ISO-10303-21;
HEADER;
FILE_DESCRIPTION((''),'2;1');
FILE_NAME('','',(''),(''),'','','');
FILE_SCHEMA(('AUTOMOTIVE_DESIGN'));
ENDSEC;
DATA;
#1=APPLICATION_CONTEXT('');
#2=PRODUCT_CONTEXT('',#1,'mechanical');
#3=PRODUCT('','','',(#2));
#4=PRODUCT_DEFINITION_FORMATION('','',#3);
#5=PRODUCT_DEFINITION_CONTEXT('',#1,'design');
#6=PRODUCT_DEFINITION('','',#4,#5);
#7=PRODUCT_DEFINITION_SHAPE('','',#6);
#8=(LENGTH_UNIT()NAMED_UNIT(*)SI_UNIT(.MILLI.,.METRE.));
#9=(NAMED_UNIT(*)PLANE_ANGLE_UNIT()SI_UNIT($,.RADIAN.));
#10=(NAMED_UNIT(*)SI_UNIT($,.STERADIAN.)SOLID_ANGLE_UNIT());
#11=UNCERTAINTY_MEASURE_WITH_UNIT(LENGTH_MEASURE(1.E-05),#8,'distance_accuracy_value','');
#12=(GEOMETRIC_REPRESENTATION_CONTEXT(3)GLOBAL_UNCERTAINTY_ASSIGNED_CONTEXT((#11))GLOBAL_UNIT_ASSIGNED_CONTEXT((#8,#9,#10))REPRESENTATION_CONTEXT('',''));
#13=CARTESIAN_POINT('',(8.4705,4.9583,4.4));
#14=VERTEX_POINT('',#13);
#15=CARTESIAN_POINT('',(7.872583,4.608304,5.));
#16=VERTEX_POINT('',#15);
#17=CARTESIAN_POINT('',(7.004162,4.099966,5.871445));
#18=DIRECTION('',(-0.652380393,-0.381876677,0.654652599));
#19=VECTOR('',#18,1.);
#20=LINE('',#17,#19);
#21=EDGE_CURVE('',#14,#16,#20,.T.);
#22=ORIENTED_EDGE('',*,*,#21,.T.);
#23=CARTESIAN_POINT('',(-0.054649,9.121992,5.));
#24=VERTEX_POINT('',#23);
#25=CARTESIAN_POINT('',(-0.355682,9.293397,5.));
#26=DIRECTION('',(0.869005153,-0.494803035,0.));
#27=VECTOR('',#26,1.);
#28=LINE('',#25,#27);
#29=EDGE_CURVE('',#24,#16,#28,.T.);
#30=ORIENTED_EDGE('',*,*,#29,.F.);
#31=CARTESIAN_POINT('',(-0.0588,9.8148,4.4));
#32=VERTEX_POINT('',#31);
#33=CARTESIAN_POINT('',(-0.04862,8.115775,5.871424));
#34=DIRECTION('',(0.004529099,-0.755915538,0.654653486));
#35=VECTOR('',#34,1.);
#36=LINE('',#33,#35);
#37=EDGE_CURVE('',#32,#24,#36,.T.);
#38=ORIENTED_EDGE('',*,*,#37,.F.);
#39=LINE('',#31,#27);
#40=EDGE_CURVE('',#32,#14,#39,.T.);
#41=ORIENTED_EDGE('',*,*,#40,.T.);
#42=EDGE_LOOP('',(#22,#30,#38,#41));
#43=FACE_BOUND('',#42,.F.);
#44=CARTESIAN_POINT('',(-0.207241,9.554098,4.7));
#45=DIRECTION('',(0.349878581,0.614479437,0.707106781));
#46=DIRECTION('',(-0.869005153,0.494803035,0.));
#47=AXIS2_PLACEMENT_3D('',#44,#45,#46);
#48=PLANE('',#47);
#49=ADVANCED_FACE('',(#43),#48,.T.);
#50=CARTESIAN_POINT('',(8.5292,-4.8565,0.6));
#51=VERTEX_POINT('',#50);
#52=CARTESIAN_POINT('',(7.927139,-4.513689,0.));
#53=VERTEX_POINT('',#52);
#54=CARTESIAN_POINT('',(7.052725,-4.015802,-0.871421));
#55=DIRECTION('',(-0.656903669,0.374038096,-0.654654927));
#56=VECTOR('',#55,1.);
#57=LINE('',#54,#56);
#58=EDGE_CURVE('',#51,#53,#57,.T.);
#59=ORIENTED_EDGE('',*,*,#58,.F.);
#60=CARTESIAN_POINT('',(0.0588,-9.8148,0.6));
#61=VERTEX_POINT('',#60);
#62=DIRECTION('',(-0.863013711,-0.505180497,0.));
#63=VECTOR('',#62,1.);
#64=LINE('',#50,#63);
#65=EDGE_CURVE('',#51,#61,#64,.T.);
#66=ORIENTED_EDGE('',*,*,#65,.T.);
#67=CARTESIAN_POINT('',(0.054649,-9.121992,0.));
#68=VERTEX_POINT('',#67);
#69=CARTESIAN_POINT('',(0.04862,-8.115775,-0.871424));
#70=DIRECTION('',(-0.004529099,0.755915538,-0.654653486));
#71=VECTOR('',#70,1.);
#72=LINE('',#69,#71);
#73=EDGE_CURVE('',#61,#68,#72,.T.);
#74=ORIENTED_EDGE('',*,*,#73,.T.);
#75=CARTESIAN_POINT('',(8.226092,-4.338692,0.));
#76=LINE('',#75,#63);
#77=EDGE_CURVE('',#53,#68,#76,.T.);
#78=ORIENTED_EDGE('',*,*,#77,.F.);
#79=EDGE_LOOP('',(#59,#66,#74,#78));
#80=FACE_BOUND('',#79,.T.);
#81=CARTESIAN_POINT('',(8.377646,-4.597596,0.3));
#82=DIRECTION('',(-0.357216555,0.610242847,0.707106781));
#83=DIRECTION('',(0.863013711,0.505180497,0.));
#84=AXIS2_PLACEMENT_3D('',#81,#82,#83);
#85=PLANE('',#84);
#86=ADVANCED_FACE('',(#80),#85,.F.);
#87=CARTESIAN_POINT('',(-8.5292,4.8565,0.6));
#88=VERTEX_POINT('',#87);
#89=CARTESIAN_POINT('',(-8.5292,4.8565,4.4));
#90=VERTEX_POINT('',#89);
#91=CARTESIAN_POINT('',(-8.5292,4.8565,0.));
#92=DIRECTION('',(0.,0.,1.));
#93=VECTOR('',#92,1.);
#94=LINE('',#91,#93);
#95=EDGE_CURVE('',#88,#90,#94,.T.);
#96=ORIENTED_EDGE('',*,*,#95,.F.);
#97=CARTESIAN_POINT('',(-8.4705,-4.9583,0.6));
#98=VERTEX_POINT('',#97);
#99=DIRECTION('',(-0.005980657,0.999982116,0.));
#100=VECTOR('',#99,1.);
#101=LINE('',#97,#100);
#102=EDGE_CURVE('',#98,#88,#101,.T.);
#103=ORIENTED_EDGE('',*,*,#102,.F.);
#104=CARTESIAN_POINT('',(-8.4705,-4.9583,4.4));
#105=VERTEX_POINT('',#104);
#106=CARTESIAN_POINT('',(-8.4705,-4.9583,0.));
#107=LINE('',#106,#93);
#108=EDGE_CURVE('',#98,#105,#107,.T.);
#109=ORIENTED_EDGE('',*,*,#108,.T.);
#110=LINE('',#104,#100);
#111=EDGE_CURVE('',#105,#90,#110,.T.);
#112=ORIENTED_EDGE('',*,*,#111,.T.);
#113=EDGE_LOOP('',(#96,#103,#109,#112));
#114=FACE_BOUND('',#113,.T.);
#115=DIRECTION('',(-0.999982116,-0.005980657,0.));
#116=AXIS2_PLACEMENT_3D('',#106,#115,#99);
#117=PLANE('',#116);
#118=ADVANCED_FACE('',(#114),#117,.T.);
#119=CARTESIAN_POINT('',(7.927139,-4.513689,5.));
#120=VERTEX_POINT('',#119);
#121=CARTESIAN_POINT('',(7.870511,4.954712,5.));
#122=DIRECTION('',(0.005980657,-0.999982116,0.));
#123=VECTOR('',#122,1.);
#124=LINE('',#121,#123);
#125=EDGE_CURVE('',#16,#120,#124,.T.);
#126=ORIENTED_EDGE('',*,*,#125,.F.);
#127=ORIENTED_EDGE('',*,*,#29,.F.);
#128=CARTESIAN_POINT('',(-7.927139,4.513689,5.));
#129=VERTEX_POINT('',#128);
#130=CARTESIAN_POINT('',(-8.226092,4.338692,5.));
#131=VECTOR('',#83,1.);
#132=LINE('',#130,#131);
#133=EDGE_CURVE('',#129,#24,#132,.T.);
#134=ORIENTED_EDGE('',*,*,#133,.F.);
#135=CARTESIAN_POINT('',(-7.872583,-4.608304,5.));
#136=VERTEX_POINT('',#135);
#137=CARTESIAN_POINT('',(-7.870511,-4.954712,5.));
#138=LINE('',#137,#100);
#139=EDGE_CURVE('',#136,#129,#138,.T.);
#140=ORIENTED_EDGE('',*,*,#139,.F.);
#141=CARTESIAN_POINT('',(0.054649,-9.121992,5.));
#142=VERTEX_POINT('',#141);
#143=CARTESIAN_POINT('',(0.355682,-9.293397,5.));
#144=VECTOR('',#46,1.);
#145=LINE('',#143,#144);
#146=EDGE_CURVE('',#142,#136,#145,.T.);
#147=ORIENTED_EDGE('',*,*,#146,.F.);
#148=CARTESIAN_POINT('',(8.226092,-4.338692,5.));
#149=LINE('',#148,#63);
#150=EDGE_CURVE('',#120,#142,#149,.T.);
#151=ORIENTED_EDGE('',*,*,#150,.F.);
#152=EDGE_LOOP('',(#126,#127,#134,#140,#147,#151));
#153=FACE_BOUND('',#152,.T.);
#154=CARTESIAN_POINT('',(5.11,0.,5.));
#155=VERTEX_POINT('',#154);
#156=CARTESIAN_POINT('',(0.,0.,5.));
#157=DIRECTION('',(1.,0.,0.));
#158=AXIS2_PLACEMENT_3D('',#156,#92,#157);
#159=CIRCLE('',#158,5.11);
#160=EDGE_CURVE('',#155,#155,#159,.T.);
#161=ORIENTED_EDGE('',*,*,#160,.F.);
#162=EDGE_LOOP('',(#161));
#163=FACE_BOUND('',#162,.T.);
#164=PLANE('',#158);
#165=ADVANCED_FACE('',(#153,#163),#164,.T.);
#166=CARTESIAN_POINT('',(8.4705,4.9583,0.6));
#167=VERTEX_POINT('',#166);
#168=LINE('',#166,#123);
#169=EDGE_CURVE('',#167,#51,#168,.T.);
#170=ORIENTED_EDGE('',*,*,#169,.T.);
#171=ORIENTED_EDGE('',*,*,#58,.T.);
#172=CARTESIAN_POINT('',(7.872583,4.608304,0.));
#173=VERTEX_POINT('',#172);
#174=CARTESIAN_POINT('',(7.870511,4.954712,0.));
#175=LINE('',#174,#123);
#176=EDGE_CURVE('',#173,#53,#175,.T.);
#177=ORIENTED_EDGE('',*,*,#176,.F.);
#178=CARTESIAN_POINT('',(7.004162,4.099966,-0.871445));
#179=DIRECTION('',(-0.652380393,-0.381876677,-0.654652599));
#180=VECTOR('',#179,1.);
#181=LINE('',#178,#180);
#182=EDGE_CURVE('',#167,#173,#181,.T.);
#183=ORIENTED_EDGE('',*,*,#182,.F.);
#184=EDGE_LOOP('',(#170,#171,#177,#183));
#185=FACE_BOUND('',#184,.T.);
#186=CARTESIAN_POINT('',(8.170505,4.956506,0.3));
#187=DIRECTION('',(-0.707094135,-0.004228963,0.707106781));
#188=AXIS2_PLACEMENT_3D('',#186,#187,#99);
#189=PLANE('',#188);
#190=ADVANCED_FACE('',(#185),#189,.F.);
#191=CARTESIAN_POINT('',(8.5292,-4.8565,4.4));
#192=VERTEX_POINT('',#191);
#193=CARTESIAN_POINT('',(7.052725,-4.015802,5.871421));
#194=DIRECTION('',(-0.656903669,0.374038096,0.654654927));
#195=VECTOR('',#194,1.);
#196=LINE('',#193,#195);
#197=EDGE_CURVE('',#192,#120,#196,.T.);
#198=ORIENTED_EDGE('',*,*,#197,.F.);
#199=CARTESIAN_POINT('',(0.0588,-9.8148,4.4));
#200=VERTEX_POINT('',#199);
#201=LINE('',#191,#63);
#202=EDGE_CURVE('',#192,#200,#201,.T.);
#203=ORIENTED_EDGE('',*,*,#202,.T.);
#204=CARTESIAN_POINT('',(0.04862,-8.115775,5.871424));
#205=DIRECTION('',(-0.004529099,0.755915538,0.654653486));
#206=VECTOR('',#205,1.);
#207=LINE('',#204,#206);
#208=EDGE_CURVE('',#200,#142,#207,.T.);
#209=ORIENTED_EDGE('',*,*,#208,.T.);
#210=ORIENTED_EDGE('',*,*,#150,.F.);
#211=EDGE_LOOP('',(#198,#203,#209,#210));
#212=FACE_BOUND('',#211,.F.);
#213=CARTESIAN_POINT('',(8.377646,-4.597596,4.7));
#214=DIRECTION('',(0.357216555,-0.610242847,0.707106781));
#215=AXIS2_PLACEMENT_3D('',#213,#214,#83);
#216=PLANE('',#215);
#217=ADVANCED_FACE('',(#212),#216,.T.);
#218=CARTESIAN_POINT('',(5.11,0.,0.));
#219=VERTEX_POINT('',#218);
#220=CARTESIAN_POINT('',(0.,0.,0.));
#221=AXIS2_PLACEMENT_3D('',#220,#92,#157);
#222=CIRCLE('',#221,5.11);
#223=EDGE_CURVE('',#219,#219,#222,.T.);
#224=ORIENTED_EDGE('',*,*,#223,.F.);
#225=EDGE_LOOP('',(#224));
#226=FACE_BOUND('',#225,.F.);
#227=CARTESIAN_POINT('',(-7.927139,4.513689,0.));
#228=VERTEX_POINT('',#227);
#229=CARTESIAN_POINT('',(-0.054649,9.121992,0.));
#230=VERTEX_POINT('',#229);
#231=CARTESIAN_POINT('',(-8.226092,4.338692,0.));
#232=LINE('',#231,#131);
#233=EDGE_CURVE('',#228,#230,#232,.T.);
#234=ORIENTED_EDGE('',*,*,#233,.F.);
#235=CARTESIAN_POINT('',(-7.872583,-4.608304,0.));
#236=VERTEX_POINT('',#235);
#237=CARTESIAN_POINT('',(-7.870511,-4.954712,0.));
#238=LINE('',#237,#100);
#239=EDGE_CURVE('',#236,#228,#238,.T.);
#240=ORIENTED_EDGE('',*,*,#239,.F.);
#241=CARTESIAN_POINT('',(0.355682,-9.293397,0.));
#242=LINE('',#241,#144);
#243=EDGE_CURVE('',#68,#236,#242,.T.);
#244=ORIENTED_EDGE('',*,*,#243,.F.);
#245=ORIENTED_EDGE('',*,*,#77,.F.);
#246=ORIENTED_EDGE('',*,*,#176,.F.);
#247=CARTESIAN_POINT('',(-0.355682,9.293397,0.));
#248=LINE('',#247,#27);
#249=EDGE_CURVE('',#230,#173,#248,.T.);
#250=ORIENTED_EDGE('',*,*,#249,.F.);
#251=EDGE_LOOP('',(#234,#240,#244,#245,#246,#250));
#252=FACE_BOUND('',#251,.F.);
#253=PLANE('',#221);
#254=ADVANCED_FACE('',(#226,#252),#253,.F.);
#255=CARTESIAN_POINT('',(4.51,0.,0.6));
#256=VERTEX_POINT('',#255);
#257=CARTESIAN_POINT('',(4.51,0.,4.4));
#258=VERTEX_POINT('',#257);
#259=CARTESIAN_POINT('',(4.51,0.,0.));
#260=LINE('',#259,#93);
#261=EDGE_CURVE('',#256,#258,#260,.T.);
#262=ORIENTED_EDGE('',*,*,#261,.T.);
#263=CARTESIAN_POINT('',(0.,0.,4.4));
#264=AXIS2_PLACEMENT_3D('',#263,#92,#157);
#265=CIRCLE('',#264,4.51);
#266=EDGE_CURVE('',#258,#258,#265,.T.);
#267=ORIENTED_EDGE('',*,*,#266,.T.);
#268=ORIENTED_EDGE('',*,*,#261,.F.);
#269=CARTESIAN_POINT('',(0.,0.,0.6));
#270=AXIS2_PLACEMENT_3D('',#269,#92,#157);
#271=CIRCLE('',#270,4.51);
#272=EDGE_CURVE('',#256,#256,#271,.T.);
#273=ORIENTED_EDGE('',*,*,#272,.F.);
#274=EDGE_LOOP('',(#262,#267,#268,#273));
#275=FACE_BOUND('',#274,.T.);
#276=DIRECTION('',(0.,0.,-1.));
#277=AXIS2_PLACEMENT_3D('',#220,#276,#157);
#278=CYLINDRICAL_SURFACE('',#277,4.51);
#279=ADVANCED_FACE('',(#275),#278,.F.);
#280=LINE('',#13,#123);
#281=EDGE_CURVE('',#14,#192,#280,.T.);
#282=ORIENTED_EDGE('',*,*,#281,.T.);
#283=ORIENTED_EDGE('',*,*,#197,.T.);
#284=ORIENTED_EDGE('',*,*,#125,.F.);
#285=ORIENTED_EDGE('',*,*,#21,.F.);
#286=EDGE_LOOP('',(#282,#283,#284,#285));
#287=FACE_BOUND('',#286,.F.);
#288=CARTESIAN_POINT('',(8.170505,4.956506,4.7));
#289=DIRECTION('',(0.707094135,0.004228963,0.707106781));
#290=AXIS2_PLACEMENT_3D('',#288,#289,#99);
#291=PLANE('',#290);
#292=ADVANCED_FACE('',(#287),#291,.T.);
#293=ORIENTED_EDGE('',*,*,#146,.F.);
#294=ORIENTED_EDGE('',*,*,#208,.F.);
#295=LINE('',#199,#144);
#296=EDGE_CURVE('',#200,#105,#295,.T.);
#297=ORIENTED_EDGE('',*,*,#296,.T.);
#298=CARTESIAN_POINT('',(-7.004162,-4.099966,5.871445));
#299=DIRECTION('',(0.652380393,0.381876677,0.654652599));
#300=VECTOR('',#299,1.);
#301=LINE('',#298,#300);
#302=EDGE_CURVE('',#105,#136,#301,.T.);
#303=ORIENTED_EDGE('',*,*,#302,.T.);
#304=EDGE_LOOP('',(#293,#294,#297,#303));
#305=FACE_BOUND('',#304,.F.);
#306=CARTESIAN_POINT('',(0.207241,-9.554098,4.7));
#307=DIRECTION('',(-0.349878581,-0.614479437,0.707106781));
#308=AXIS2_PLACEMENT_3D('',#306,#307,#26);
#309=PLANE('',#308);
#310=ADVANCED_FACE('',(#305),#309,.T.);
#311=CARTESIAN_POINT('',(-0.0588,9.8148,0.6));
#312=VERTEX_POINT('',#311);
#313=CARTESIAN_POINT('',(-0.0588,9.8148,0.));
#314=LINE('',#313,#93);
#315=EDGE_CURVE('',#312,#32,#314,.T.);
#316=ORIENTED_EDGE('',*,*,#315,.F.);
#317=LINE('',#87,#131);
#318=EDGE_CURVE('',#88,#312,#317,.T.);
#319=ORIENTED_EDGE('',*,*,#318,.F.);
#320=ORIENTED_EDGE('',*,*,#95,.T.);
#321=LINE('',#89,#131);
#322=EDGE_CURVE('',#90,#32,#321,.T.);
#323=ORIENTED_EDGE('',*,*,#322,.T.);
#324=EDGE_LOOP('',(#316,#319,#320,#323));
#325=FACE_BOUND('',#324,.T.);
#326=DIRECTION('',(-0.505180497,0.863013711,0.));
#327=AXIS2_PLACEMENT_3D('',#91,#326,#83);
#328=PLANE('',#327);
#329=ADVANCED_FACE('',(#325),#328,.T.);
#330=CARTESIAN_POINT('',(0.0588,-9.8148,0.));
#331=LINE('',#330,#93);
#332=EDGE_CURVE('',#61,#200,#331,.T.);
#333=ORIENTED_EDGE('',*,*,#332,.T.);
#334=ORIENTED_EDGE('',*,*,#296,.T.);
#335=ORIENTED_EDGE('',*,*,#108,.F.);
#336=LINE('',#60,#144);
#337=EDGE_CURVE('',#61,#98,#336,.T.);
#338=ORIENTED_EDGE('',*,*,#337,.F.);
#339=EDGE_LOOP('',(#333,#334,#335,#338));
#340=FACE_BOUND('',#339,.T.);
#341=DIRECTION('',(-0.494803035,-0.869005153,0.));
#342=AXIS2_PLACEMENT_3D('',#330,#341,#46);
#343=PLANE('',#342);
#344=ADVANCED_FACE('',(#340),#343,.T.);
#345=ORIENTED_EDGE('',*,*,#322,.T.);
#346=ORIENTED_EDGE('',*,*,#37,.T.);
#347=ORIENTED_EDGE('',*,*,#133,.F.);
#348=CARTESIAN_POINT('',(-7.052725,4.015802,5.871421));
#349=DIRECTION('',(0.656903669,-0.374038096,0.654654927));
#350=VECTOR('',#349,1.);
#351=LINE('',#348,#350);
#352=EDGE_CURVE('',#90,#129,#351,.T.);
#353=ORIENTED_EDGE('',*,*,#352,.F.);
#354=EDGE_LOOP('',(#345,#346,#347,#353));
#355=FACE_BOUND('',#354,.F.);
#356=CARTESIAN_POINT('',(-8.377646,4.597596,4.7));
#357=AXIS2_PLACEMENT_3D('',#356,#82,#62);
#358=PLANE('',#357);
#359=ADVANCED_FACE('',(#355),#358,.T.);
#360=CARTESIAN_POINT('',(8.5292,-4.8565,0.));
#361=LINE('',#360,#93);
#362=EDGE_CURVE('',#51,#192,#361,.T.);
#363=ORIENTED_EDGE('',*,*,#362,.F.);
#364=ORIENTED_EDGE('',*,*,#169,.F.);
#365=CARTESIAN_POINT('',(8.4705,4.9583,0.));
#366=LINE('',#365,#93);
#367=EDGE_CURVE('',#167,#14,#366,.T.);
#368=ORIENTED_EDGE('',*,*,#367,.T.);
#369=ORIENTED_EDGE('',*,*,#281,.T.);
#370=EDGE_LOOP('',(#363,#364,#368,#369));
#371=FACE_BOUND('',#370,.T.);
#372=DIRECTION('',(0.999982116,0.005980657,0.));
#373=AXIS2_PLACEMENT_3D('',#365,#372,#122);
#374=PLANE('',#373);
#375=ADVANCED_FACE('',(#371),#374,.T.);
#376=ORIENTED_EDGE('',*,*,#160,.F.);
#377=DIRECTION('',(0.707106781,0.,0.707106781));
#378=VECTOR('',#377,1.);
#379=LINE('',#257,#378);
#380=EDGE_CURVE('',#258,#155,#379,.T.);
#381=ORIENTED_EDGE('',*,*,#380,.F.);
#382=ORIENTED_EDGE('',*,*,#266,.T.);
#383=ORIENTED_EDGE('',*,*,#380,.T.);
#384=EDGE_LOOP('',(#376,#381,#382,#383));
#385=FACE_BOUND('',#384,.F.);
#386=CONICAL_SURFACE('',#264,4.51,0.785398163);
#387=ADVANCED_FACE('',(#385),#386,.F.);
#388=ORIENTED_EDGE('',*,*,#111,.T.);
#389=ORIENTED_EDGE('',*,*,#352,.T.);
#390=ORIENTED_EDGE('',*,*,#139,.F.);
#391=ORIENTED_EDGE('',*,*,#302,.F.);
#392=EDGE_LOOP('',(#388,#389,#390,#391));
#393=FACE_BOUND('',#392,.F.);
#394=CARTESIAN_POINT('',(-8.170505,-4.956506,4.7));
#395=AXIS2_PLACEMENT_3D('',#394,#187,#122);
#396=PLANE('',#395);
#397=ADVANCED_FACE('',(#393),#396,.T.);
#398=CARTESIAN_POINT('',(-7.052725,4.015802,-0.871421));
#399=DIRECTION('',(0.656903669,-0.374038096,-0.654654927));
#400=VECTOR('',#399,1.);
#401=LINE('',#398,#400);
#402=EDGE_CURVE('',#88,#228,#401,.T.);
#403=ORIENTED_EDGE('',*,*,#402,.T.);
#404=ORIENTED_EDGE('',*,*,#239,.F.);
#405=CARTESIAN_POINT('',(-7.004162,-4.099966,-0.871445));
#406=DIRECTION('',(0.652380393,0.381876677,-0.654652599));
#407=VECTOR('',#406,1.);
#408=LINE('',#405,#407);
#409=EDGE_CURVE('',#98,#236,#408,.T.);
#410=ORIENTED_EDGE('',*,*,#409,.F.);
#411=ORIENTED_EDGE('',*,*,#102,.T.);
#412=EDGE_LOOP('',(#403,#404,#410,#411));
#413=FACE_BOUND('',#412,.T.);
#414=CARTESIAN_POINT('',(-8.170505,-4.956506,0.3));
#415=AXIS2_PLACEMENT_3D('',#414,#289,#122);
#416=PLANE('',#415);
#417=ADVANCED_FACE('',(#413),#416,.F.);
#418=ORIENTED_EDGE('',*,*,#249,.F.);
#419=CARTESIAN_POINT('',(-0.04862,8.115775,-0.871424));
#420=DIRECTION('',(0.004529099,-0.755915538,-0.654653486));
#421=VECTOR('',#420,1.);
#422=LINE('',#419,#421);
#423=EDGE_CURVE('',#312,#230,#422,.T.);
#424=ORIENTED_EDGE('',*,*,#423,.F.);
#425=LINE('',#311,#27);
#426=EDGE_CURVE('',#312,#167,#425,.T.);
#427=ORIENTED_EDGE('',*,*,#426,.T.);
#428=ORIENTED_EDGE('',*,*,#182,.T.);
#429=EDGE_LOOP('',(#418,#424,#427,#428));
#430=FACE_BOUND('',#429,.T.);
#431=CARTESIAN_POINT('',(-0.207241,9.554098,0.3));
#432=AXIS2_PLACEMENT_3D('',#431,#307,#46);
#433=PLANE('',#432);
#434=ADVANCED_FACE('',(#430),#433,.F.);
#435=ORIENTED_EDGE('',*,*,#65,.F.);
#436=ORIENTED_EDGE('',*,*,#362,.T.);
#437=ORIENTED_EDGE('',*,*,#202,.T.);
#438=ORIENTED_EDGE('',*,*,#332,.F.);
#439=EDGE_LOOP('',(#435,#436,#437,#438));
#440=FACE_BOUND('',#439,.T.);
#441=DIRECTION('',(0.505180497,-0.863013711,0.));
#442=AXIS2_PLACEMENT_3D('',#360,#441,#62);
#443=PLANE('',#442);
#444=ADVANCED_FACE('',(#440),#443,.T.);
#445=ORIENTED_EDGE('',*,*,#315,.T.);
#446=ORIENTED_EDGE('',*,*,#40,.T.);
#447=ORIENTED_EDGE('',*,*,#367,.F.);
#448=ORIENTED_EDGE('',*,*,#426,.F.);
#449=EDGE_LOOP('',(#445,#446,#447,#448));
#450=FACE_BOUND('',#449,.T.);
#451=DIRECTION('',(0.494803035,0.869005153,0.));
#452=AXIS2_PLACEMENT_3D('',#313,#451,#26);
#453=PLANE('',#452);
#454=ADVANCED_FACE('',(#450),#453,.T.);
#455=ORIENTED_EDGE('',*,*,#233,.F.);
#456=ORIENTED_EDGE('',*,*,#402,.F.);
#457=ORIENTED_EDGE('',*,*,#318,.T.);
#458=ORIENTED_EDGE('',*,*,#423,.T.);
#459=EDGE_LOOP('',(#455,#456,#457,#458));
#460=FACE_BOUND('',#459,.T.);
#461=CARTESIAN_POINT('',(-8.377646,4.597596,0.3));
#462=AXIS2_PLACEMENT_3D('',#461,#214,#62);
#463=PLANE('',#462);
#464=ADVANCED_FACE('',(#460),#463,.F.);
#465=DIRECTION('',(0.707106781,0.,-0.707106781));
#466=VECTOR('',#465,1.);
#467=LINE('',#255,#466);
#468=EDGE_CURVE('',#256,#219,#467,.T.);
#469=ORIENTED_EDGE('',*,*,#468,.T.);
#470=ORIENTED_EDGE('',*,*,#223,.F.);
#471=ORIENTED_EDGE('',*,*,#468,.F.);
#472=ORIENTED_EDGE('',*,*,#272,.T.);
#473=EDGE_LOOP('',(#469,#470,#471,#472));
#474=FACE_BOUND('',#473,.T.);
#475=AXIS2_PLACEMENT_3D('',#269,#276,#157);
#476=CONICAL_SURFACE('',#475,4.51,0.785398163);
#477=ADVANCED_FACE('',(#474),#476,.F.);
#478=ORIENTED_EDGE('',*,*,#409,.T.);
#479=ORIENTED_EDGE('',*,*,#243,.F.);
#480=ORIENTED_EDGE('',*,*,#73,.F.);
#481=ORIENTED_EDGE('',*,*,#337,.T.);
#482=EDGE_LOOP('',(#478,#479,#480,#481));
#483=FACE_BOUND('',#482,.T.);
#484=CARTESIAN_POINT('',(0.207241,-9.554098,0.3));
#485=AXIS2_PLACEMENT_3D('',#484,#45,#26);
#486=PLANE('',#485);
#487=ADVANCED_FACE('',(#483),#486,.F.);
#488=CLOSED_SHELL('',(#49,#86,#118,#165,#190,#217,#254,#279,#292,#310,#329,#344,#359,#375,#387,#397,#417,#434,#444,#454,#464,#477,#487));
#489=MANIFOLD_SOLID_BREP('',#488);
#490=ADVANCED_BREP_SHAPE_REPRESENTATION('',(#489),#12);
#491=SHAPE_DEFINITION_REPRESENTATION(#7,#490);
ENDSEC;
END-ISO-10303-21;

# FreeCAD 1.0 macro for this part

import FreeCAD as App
import Part
import Sketcher
from FreeCAD import Vector


def edges_at(feature, points):
    """Names of the edges that pass closest to the given points."""
    edges = feature.Shape.Edges
    near = lambda p: min(range(len(edges)), key=lambda i: edges[i].distToShape(Part.Vertex(*p))[0])
    return sorted({f"Edge{near(p) + 1}" for p in points})


def add_polygon(sketch, points):
    """Adds a closed chain of lines whose ends are joined by coincident constraints."""
    first, n = sketch.GeometryCount, len(points)
    for a, b in zip(points, points[1:] + points[:1]):
        sketch.addGeometry(Part.LineSegment(App.Vector(*a, 0), App.Vector(*b, 0)), False)
    for i in range(n):
        sketch.addConstraint(Sketcher.Constraint("Coincident", first + i, 2, first + (i + 1) % n, 1))

doc = App.newDocument("Part")
body = doc.addObject("PartDesign::Body", "Body")

# Sketch on XY plane
sketch1 = body.newObject("Sketcher::SketchObject", "Sketch")
sketch1.AttachmentSupport = (doc.getObject("XY_Plane"), [""])
sketch1.MapMode = "FlatFace"
add_polygon(sketch1, [(8.5, 5), (-0.1, 9.8), (-8.5, 4.9), (-8.5, -5), (0.1, -9.8), (8.5, -4.9)])  # lines 0-5
sketch1.addGeometry(Part.Circle(Vector(0, 0, 0), Vector(0, 0, 1), 4.5), False)  # 6
sketch1.addConstraint(Sketcher.Constraint("Coincident", 6, 3, -1, 1))
sketch1.addConstraint(Sketcher.Constraint("Symmetric", 0, 2, 3, 2, -1, 1))
sketch1.addConstraint(Sketcher.Constraint("Symmetric", 1, 2, 4, 2, -1, 1))
sketch1.addConstraint(Sketcher.Constraint("Symmetric", 2, 2, 5, 2, -1, 1))
sketch1.addConstraint(Sketcher.Constraint("Equal", 0, 1))
sketch1.addConstraint(Sketcher.Constraint("Equal", 1, 2))
sketch1.addConstraint(Sketcher.Constraint("Diameter", 6, 9.02))
sketch1.addConstraint(Sketcher.Constraint("Distance", 0, 9.815))
sketch1.addConstraint(Sketcher.Constraint("DistanceY", 2, 2, 0, 2, 14.773))
sketch1.addConstraint(Sketcher.Constraint("DistanceX", 1, 2, 3, 2, 8.588))
sketch1.addConstraint(Sketcher.Constraint("DistanceY", 4, 2, 1, 2, 9.713))
pad1 = body.newObject("PartDesign::Pad", "Pad")
pad1.Profile = sketch1
pad1.Length = 5
doc.recompute()

chamfer = body.newObject("PartDesign::Chamfer", "Chamfer")
chamfer.Base = (pad1, edges_at(pad1, [
    (-4.294, 7.336, 5),
    (-8.5, -0.051, 5),
    (-4.206, -7.386, 5),
    (4.294, -7.336, 5),
    (8.5, 0.051, 5),
    (4.206, 7.386, 5),
    (-4.206, -7.386, 0),
    (4.294, -7.336, 0),
    (8.5, 0.051, 0),
    (4.206, 7.386, 0),
    (-4.294, 7.336, 0),
    (-8.5, -0.051, 0),
    (-4.51, 0, 5),
    (-4.51, 0, 0),
]))
chamfer.Size = 0.6

doc.recompute()
